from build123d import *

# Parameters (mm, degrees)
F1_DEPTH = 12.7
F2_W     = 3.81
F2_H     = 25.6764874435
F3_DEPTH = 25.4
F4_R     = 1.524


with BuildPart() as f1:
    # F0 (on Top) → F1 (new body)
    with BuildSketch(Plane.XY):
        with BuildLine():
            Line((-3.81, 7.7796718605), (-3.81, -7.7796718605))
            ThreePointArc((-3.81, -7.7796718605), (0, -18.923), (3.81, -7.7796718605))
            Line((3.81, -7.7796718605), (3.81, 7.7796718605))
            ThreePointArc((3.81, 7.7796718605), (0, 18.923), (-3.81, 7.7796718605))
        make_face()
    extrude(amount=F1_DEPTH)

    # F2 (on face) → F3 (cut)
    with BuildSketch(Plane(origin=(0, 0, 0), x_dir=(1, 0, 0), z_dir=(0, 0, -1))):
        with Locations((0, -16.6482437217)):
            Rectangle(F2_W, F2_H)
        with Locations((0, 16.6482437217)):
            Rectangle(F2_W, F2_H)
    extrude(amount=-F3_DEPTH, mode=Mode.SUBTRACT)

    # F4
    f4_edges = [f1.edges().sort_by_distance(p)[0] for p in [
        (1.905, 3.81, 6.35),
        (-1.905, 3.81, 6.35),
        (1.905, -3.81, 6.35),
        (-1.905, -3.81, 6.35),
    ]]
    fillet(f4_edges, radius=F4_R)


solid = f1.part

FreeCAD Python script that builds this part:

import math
import FreeCAD as App
import Part
import Sketcher

V = App.Vector
Q = App.Units.Quantity


def edges_at(feature, points):
    """Names of the edges that pass closest to the given points."""
    edges = feature.Shape.Edges
    near = lambda p: min(range(len(edges)), key=lambda i: edges[i].distToShape(Part.Vertex(*p))[0])
    return sorted({f"Edge{near(p) + 1}" for p in points})


def add_polygon(sketch, points):
    """Adds a closed chain of lines whose ends are joined by coincident constraints."""
    first, n = sketch.GeometryCount, len(points)
    for a, b in zip(points, points[1:] + points[:1]):
        sketch.addGeometry(Part.LineSegment(App.Vector(*a, 0), App.Vector(*b, 0)), False)
    for i in range(n):
        sketch.addConstraint(Sketcher.Constraint("Coincident", first + i, 2, first + (i + 1) % n, 1))

doc = App.newDocument("Part")
body = doc.addObject("PartDesign::Body", "Body")

# Sketch on XY plane
sketch1 = body.newObject("Sketcher::SketchObject", "Sketch")
sketch1.AttachmentSupport = (doc.getObject("XY_Plane"), [""])
sketch1.MapMode = "FlatFace"
sketch1.addGeometry([
    Part.LineSegment(V(-3.81, 7.779672, 0), V(-3.81, -7.779672, 0)),
    Part.ArcOfCircle(Part.Circle(V(0, -12.7, 0), V(0, 0, 1), 6.223), math.radians(127.752001), math.radians(412.247999)),
    Part.LineSegment(V(3.81, -7.779672, 0), V(3.81, 7.779672, 0)),
    Part.ArcOfCircle(Part.Circle(V(0, 12.7, 0), V(0, 0, 1), 6.223), math.radians(-52.247999), math.radians(232.247999)),
], False)
sketch1.addConstraint([
    Sketcher.Constraint("Coincident", 0, 2, 1, 1),
    Sketcher.Constraint("Coincident", 1, 2, 2, 1),
    Sketcher.Constraint("Coincident", 2, 2, 3, 1),
    Sketcher.Constraint("Coincident", 3, 2, 0, 1),
    Sketcher.Constraint("Vertical", 0),
    Sketcher.Constraint("Vertical", 2),
    Sketcher.Constraint("Equal", 1, 3),
    Sketcher.Constraint("Symmetric", 1, 3, 3, 3, -1, 1),
    Sketcher.Constraint("Symmetric", 0, 2, 1, 2, -2),
    Sketcher.Constraint("Radius", 1, Q("0.245 in")),
    Sketcher.Constraint("DistanceY", 1, 3, 3, 3, Q("1 in")),
    Sketcher.Constraint("DistanceX", 0, 2, 1, 2, Q("0.3 in")),
])
pad1 = body.newObject("PartDesign::Pad", "Pad")
pad1.Profile = sketch1
pad1.Length = Q("0.5 in")

# Sketch on XY plane
sketch2 = body.newObject("Sketcher::SketchObject", "Sketch001")
sketch2.AttachmentSupport = (doc.getObject("XY_Plane"), [""])
sketch2.MapMode = "FlatFace"
add_polygon(sketch2, [(-1.905, 3.81), (-1.905, 29.486487), (1.905, 29.486487), (1.905, 3.81)])  # lines 0-3
add_polygon(sketch2, [(-1.905, -29.486487), (-1.905, -3.81), (1.905, -3.81), (1.905, -29.486487)])  # lines 4-7
sketch2.addConstraint([
    Sketcher.Constraint("Vertical", 0),
    Sketcher.Constraint("Horizontal", 1),
    Sketcher.Constraint("Vertical", 2),
    Sketcher.Constraint("Horizontal", 3),
    Sketcher.Constraint("Vertical", 4),
    Sketcher.Constraint("Horizontal", 5),
    Sketcher.Constraint("Vertical", 6),
    Sketcher.Constraint("Horizontal", 7),
    Sketcher.Constraint("Symmetric", 2, 2, 4, 2, -1, 1),
    Sketcher.Constraint("Symmetric", 0, 2, 6, 2, -1, 1),
    Sketcher.Constraint("Vertical", 3, 2, 4, 2),
    Sketcher.Constraint("DistanceX", 1, 1, 1, 2, Q("0.15 in")),
    Sketcher.Constraint("DistanceY", 4, 2, 3, 2, Q("0.3 in")),
    Sketcher.Constraint("DistanceY", 0, 1, 0, 2, 25.676487),
])
pocket1 = body.newObject("PartDesign::Pocket", "Pocket")
pocket1.Profile = sketch2
pocket1.Length = Q("1 in")
pocket1.Reversed = True
doc.recompute()

fillet = body.newObject("PartDesign::Fillet", "Fillet")
fillet.Base = (pocket1, edges_at(pocket1, [
    (1.905, 3.81, 6.35),
    (-1.905, 3.81, 6.35),
    (1.905, -3.81, 6.35),
    (-1.905, -3.81, 6.35),
]))
fillet.Radius = Q("0.06 in")

doc.recompute()
